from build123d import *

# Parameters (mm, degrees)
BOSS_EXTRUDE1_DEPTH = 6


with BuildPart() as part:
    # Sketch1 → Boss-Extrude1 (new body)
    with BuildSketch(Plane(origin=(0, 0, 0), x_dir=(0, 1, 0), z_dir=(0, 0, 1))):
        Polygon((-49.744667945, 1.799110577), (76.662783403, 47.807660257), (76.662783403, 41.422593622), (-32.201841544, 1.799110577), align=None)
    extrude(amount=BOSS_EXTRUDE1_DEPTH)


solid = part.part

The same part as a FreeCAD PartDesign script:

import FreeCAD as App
import Part
import Sketcher
Q = App.Units.Quantity

doc = App.newDocument("Part")
body = doc.addObject("PartDesign::Body", "Body")

# Sketch on XY plane
sketch1 = doc.addObject("Sketcher::SketchObject", "Sketch")
body.addObject(sketch1)
sketch1.AttachmentSupport = (doc.XY_Plane, [""])
sketch1.MapMode = "FlatFace"
sketch1.addGeometry([
    Part.LineSegment(App.Vector(-48, 77, 0), App.Vector(-2, -50, 0)),
    Part.LineSegment(App.Vector(-2, -50, 0), App.Vector(-2, -32, 0)),
    Part.LineSegment(App.Vector(-2, -32, 0), App.Vector(-41, 77, 0)),
    Part.LineSegment(App.Vector(-41, 77, 0), App.Vector(-48, 77, 0)),
], False)
sketch1.addConstraint([
    Sketcher.Constraint("Coincident", 0, 2, 1, 1),
    Sketcher.Constraint("Coincident", 1, 2, 2, 1),
    Sketcher.Constraint("Coincident", 2, 2, 3, 1),
    Sketcher.Constraint("Coincident", 3, 2, 0, 1),
    Sketcher.Constraint("Vertical", 1),
    Sketcher.Constraint("Horizontal", 3),
    Sketcher.Constraint("Parallel", 0, 2),
    Sketcher.Constraint("Angle", 0, Q("-70 deg")),
    Sketcher.Constraint("Distance", 0, Q("134.52 mm")),
    Sketcher.Constraint("DistanceX", 3, 2, 3, 1, Q("6.385067 mm")),
    Sketcher.Constraint("DistanceX", 0, 2, -1, 1, Q("1.799111 mm")),
    Sketcher.Constraint("DistanceY", 1, 2, -1, 1, Q("32.201842 mm")),
])
pad1 = doc.addObject("PartDesign::Pad", "Pad")
body.addObject(pad1)
pad1.Profile = sketch1
pad1.Length = 6

doc.recompute()
